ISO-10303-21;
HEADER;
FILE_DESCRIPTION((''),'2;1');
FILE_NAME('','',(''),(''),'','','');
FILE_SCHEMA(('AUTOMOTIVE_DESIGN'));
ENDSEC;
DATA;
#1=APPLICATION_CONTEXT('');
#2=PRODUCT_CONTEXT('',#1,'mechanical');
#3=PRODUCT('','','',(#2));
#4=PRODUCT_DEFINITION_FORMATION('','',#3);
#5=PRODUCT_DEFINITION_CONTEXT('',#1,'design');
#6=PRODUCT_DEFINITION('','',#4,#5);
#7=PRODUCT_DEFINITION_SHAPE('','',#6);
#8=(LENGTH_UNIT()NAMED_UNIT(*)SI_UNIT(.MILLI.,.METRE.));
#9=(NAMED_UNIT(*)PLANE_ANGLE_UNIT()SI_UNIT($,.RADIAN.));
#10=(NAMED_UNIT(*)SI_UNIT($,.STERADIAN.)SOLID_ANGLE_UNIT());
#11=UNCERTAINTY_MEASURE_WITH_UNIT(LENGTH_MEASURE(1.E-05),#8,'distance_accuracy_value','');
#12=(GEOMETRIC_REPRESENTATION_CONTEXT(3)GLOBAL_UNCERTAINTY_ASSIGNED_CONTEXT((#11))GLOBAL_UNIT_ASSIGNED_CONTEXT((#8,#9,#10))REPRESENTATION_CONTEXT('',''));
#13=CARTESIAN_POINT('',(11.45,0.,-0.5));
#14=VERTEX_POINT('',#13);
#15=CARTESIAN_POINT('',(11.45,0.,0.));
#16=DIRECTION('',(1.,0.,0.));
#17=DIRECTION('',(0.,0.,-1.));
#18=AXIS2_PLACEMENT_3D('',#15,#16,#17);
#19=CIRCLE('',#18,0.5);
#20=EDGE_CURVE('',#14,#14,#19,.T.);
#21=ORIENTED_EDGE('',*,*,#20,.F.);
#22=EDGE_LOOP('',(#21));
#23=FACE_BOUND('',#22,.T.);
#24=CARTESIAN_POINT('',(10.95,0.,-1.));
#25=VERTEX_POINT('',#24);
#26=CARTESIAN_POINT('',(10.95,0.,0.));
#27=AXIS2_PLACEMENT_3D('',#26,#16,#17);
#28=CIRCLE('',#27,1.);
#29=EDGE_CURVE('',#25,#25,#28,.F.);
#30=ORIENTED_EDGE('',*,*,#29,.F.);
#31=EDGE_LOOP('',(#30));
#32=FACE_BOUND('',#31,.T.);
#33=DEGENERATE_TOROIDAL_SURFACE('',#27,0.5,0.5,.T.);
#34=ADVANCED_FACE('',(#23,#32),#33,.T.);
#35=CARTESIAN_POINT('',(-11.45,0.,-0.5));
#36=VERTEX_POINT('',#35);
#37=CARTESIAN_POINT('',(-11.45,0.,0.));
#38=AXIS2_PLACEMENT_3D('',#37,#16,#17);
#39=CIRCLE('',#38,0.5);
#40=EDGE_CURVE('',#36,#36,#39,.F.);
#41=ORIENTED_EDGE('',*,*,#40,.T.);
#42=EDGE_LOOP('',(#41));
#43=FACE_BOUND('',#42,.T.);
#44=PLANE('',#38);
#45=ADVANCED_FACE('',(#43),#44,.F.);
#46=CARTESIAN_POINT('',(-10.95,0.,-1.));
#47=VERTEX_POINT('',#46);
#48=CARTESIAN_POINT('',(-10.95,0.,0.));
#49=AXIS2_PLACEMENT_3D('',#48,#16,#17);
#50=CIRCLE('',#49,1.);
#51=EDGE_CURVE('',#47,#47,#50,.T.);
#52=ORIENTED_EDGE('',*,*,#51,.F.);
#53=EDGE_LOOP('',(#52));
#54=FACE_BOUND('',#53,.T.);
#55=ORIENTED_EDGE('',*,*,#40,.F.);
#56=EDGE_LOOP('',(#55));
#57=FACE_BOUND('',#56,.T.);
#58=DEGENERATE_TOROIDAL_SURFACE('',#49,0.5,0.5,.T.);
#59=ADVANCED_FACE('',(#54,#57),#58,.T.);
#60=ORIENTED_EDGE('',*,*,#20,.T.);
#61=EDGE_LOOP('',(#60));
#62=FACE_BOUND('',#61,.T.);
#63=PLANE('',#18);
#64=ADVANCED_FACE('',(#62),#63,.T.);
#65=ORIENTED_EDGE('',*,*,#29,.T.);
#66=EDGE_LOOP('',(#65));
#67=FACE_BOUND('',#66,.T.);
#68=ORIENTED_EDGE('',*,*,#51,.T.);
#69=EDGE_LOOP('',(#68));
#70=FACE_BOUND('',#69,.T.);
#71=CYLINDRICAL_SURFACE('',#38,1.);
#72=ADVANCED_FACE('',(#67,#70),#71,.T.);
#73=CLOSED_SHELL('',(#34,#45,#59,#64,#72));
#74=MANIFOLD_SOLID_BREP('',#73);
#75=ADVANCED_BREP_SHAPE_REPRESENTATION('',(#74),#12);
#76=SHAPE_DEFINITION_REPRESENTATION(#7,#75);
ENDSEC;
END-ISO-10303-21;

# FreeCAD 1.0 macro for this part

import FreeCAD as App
import Part
import Sketcher


def edges_at(feature, points):
    """Names of the edges that pass closest to the given points."""
    edges = feature.Shape.Edges
    near = lambda p: min(range(len(edges)), key=lambda i: edges[i].distToShape(Part.Vertex(*p))[0])
    return sorted({f"Edge{near(p) + 1}" for p in points})

doc = App.newDocument("Part")
params = doc.addObject("Spreadsheet::Sheet", "Params")
for row, (alias, value) in enumerate([
    ("sketch1_diameter", "2 mm"),
    ("pad1_length", "11.45 mm"),
    ("pad1_length2", "11.45 mm"),
    ("fillet_radius", "0.5 mm"),
], start=1):
    params.set(f"A{row}", alias)
    params.set(f"B{row}", "=" + value)
    params.setAlias(f"B{row}", alias)

body = doc.addObject("PartDesign::Body", "Body")

# Sketch on YZ plane
sketch1 = body.newObject("Sketcher::SketchObject", "Sketch")
sketch1.AttachmentSupport = (doc.getObject("YZ_Plane"), [""])
sketch1.MapMode = "FlatFace"
sketch1.addGeometry(Part.Circle(App.Vector(0, 0, 0), App.Vector(0, 0, 1), 1), False)
sketch1.addConstraint([
    Sketcher.Constraint("Coincident", 0, 3, -1, 1),
    Sketcher.Constraint("Diameter", 0, 2.0),
])
sketch1.setExpression("Constraints[1]", "Params.sketch1_diameter")
pad1 = body.newObject("PartDesign::Pad", "Pad")
pad1.Profile = sketch1
pad1.Type = "TwoLengths"
pad1.setExpression("Length", "Params.pad1_length")
pad1.setExpression("Length2", "Params.pad1_length2")
doc.recompute()

fillet = body.newObject("PartDesign::Fillet", "Fillet")
fillet.Base = (pad1, edges_at(pad1, [(11.45, 0, 1), (-11.45, 0, 1)]))
fillet.setExpression("Radius", "Params.fillet_radius")

doc.recompute()
